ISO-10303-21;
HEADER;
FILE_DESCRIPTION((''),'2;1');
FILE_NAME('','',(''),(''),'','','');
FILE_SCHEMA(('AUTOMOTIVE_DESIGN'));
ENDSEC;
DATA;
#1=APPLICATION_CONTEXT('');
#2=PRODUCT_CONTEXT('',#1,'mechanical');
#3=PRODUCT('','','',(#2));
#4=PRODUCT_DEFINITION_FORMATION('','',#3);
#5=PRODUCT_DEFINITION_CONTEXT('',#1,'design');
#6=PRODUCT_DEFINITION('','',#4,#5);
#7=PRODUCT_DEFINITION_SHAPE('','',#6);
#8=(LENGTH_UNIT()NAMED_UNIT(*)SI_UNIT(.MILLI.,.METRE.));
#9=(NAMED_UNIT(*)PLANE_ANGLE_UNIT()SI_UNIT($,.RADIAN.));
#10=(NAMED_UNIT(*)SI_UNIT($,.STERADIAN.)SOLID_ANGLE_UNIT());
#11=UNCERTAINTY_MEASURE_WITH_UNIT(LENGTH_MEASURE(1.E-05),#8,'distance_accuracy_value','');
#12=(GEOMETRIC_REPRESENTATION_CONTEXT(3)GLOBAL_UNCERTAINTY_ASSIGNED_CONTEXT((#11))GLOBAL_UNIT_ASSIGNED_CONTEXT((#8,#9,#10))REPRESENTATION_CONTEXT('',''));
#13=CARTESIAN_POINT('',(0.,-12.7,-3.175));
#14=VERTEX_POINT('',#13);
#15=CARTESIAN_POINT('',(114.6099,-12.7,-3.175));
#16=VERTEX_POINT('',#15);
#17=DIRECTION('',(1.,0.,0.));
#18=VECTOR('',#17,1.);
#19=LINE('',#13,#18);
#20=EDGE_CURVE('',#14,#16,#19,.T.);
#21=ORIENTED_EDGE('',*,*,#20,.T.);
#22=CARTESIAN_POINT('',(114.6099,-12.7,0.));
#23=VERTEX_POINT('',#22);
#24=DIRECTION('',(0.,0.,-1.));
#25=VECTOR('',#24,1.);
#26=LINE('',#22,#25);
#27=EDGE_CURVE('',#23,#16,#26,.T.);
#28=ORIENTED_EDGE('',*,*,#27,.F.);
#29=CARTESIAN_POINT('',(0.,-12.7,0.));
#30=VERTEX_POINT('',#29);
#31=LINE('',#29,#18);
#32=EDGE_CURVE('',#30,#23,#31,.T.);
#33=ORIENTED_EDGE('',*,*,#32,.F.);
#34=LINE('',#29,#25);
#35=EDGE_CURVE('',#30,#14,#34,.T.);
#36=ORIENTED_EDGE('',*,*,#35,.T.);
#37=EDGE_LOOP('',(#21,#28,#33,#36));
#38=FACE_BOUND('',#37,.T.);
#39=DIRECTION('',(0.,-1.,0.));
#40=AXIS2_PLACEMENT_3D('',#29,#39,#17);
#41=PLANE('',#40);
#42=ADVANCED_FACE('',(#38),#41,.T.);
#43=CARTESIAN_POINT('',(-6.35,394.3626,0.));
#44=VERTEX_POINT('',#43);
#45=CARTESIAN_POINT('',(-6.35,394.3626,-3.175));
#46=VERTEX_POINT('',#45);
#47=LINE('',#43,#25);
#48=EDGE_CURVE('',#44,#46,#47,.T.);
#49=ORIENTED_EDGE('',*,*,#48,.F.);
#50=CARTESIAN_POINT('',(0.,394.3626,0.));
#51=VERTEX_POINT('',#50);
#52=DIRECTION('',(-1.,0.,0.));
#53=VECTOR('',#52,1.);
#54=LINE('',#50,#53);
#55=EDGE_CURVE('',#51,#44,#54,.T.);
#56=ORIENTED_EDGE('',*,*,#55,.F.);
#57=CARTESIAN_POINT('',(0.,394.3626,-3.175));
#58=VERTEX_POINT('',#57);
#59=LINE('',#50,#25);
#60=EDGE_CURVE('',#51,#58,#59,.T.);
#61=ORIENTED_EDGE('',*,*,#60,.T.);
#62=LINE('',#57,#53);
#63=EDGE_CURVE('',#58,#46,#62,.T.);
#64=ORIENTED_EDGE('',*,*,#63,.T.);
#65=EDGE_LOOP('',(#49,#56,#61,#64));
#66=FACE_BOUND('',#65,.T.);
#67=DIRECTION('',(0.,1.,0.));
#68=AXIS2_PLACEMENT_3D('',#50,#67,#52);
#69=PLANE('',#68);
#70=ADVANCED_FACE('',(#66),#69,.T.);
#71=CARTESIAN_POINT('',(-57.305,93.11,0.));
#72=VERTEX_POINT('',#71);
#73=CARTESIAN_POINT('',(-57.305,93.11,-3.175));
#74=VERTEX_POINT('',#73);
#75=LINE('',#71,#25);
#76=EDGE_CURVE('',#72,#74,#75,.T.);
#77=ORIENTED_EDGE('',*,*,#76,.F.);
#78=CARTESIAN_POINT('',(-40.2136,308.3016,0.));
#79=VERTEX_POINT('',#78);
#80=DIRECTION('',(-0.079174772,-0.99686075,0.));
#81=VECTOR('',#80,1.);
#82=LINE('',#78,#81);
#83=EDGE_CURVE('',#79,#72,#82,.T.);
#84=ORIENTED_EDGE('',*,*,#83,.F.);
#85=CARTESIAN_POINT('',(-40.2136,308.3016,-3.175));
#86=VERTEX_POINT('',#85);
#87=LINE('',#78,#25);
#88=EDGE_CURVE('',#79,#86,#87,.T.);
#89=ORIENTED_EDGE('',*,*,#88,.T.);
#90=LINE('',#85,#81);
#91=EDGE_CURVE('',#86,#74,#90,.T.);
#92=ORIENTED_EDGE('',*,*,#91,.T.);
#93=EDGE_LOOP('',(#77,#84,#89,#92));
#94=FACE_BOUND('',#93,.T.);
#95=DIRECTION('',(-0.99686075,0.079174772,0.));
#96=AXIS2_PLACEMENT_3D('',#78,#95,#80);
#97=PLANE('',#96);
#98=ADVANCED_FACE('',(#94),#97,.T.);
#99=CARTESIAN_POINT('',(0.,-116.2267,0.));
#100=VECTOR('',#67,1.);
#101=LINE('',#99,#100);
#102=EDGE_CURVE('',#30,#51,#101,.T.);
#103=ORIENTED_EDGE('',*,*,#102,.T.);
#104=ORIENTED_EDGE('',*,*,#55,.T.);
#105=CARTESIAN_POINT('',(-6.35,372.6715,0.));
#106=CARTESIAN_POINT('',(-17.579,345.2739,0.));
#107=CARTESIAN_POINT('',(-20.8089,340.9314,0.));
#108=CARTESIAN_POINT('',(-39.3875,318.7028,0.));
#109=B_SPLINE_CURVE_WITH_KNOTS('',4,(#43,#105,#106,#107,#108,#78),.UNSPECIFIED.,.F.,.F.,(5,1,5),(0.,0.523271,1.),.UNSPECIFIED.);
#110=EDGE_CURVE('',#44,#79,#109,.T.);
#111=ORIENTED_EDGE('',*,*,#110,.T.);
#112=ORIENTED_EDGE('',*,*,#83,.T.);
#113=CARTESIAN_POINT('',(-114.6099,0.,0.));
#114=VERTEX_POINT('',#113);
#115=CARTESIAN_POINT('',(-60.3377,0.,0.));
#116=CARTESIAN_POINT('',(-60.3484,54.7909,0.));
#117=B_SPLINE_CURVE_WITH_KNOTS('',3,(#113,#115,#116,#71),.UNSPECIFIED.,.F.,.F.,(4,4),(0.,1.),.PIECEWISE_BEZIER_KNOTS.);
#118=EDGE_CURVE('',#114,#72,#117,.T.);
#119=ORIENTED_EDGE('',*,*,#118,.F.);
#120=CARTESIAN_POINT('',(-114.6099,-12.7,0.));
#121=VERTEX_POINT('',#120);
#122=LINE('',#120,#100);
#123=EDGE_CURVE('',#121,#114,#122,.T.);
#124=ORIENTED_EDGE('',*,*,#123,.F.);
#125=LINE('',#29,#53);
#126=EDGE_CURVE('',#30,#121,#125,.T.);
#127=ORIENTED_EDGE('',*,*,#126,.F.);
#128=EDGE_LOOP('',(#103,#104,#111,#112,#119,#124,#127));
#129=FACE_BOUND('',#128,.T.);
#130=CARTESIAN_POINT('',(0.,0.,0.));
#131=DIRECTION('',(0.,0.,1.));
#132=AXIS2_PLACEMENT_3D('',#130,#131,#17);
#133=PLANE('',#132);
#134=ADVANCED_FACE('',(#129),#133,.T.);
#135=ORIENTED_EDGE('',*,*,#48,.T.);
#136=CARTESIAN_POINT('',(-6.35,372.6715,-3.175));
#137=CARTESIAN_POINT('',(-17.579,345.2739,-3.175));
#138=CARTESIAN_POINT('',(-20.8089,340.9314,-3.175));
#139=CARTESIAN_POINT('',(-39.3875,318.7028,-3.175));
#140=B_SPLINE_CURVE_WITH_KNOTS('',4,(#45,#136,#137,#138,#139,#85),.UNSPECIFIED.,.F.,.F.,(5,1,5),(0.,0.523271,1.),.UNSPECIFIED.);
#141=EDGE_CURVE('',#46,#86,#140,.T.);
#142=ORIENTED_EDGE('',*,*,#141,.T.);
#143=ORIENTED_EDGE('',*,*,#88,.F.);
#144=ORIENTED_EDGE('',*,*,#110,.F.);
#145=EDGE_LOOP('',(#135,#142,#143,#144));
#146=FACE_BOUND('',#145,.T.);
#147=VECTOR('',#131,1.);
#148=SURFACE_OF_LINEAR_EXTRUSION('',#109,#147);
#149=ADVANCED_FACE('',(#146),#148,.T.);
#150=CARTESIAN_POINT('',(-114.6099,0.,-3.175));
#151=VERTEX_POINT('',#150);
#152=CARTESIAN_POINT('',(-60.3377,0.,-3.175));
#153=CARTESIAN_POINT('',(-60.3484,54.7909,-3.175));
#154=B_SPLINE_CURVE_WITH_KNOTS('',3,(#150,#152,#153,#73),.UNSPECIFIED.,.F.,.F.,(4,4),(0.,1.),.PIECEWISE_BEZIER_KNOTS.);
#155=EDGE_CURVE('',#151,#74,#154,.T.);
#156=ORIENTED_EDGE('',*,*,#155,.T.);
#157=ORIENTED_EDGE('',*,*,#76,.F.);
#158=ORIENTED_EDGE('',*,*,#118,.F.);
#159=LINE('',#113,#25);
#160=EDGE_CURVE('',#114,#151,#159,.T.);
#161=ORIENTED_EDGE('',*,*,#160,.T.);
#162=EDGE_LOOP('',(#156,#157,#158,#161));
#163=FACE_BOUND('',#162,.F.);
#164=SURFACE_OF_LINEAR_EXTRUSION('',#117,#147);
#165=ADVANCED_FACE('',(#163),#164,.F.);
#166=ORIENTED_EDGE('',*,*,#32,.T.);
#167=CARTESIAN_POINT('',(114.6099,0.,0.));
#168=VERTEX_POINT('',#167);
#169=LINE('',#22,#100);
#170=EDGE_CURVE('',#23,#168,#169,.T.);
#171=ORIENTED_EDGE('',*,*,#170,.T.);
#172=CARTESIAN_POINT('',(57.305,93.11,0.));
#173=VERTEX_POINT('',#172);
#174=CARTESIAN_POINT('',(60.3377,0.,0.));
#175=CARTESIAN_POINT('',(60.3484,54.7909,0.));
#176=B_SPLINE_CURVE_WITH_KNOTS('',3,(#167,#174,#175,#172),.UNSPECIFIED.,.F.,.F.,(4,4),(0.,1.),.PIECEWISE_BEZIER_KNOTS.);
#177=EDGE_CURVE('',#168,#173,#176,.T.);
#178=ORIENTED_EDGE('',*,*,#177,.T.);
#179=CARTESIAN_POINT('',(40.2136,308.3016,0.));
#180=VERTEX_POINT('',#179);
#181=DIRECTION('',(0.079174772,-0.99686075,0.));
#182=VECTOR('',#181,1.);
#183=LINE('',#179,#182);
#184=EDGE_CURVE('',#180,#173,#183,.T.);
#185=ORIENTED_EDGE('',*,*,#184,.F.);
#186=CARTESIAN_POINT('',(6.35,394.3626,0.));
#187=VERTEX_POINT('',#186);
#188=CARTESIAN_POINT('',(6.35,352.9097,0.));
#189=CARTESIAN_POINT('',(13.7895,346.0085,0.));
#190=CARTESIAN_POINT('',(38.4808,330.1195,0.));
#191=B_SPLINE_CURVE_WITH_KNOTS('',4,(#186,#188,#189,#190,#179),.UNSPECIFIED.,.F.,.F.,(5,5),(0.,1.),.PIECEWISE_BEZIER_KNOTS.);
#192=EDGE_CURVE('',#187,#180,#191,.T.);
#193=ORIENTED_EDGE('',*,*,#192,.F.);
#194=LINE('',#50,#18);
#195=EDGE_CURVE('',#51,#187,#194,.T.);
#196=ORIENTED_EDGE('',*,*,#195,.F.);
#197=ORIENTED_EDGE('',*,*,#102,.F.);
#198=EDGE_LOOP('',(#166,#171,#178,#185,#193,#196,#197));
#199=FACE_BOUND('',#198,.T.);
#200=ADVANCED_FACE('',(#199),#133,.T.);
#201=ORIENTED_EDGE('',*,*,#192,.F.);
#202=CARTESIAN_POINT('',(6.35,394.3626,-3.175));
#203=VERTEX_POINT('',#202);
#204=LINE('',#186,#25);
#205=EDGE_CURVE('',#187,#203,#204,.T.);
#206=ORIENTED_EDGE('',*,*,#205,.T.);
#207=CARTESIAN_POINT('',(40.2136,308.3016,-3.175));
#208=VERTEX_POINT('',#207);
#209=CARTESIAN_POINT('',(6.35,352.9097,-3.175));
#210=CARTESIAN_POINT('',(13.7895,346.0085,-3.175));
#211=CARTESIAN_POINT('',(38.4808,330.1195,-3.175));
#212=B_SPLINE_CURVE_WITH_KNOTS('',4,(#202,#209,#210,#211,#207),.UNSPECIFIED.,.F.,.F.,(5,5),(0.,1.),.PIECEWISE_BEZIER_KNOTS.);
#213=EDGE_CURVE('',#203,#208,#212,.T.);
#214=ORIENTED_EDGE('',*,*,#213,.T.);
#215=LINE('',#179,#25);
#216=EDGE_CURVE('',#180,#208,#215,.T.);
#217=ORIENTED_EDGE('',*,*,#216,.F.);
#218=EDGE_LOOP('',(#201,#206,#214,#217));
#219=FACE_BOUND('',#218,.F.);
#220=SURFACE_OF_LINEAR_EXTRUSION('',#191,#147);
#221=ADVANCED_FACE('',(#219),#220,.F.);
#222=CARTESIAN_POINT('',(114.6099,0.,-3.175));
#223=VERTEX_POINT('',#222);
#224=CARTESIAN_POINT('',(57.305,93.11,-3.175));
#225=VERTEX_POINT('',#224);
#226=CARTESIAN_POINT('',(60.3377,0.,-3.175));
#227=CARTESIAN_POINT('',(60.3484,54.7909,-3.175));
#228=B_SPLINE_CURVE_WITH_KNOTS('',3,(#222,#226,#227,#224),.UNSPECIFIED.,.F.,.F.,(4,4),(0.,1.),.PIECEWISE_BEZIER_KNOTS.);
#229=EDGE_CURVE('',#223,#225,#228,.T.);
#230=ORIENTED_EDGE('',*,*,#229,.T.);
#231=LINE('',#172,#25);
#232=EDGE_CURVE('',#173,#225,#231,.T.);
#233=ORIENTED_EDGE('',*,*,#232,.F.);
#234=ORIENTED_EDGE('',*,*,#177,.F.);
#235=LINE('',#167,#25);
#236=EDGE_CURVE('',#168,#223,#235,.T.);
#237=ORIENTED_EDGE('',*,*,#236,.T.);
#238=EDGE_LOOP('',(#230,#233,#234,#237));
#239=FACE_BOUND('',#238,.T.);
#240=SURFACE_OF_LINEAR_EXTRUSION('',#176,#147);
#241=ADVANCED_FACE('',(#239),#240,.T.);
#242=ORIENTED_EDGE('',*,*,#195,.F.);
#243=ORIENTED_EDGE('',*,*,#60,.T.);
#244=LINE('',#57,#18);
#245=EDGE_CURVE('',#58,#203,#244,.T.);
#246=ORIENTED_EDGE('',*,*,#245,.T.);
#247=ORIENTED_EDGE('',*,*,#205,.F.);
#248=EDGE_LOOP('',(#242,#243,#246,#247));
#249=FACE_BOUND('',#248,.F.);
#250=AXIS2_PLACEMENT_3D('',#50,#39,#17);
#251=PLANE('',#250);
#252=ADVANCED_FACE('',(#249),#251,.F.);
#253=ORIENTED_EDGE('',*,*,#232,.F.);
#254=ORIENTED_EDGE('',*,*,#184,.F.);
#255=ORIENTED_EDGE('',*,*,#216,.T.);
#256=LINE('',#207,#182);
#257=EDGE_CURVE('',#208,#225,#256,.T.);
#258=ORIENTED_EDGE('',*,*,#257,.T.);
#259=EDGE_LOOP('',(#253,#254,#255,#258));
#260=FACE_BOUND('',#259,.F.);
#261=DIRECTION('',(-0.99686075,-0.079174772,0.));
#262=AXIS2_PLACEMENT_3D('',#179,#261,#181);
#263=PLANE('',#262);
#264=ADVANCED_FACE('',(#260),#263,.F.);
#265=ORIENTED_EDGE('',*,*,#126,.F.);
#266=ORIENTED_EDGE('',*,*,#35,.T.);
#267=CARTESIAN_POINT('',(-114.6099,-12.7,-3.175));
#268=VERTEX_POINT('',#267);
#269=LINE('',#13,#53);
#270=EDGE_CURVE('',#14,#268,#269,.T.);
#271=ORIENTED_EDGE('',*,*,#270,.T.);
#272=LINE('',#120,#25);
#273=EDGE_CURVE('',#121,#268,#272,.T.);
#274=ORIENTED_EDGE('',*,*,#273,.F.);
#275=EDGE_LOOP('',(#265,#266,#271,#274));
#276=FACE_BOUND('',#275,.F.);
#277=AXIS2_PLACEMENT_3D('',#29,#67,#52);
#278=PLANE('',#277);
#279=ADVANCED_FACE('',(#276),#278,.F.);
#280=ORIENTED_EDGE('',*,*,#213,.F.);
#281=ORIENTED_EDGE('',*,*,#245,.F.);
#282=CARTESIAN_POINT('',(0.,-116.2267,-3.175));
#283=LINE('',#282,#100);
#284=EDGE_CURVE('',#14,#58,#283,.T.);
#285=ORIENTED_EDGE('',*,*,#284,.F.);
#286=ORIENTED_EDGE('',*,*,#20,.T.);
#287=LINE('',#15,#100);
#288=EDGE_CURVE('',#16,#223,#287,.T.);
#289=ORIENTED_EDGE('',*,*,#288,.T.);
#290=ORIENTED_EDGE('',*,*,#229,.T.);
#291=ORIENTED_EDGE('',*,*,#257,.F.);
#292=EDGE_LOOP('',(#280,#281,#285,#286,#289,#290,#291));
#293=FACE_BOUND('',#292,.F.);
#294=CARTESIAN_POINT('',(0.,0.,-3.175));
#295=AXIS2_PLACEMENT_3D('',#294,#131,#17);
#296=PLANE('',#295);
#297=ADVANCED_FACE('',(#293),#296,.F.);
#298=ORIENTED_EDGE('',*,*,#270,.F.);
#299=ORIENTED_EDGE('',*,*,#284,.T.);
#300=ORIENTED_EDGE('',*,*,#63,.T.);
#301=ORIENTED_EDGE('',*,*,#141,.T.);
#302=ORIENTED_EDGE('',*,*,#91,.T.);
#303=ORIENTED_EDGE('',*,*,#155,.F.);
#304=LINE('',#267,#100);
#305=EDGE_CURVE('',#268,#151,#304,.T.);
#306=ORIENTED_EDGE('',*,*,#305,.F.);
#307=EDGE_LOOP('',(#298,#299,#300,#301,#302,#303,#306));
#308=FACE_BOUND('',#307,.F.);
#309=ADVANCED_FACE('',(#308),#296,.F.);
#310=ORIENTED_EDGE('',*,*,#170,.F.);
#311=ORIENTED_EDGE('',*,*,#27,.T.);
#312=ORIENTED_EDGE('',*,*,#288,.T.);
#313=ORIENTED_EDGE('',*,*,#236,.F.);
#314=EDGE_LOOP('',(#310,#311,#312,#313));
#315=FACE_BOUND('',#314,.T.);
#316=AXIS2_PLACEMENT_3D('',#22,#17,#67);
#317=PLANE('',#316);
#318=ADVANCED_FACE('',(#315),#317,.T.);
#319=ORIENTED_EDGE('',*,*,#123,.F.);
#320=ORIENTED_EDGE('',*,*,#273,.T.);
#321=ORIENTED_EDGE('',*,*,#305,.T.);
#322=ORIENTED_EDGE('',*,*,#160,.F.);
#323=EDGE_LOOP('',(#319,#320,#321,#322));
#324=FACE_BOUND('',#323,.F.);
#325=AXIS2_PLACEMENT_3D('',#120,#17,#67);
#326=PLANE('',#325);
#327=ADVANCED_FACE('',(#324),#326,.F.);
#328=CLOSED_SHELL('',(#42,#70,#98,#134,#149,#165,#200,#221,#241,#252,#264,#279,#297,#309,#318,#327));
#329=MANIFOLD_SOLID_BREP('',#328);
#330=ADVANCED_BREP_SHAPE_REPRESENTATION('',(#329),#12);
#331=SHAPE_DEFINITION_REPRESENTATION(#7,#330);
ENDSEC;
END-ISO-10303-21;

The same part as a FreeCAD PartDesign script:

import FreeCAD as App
import Part
import Sketcher

V = App.Vector
Q = App.Units.Quantity

doc = App.newDocument("Part")
body = doc.addObject("PartDesign::Body", "Body")

sketch1 = doc.addObject("Sketcher::SketchObject", "Sketch")
body.addObject(sketch1)
sketch1.AttachmentSupport = (doc.XY_Plane, [""])
sketch1.MapMode = "FlatFace"
sketch1.addGeometry([
    Part.LineSegment(V(-114.6099, -12.7, 0), V(114.6099, -12.7, 0)),
    Part.LineSegment(V(114.6099, -12.7, 0), V(114.6099, 0, 0)),
    Part.BSplineCurve([V(114.6099, 0, 0), V(60.3377, 0, 0), V(60.3484, 54.7909, 0), V(57.305, 93.11, 0)], [4, 4], [0, 1], False, 3, [1, 1, 1, 1], False),
    Part.LineSegment(V(57.305, 93.11, 0), V(40.2136, 308.3016, 0)),
    Part.BSplineCurve([V(6.35, 394.3626, 0), V(6.35, 352.9097, 0), V(13.7895, 346.0085, 0), V(38.4808, 330.1195, 0), V(40.2136, 308.3016, 0)], [5, 5], [0, 1], False, 4, [1, 1, 1, 1, 1], False),
    Part.LineSegment(V(6.35, 394.3626, 0), V(-6.35, 394.3626, 0)),
    Part.BSplineCurve([V(-6.35, 394.3626, 0), V(-6.35, 372.6715, 0), V(-17.579, 345.2739, 0), V(-20.8089, 340.9314, 0), V(-39.3875, 318.7028, 0), V(-40.2136, 308.3016, 0)], [5, 1, 5], [0, 0.523271, 1], False, 4, [1, 1, 1, 1, 1, 1], False),
    Part.LineSegment(V(-40.2136, 308.3016, 0), V(-57.305, 93.11, 0)),
    Part.BSplineCurve([V(-114.6099, 0, 0), V(-60.3377, 0, 0), V(-60.3484, 54.7909, 0), V(-57.305, 93.11, 0)], [4, 4], [0, 1], False, 3, [1, 1, 1, 1], False),
    Part.LineSegment(V(-114.6099, 0, 0), V(-114.6099, -12.7, 0)),
], False)
sketch1.addConstraint([
    Sketcher.Constraint("Block", 2),
    Sketcher.Constraint("Block", 4),
    Sketcher.Constraint("Block", 6),
    Sketcher.Constraint("Block", 8),
    Sketcher.Constraint("Coincident", 0, 2, 1, 1),
    Sketcher.Constraint("Coincident", 1, 2, 2, 1),
    Sketcher.Constraint("Coincident", 2, 2, 3, 1),
    Sketcher.Constraint("Coincident", 3, 2, 4, 2),
    Sketcher.Constraint("Coincident", 4, 1, 5, 1),
    Sketcher.Constraint("Coincident", 5, 2, 6, 1),
    Sketcher.Constraint("Coincident", 6, 2, 7, 1),
    Sketcher.Constraint("Coincident", 7, 2, 8, 2),
    Sketcher.Constraint("Coincident", 8, 1, 9, 1),
    Sketcher.Constraint("Coincident", 9, 2, 0, 1),
    Sketcher.Constraint("Horizontal", 0),
    Sketcher.Constraint("Vertical", 1),
    Sketcher.Constraint("Vertical", 9),
    Sketcher.Constraint("Equal", 5, 1),
])
pad1 = doc.addObject("PartDesign::Pad", "Pad")
body.addObject(pad1)
pad1.Profile = sketch1
pad1.Length = Q("0.125 in")
pad1.Reversed = True

doc.recompute()
